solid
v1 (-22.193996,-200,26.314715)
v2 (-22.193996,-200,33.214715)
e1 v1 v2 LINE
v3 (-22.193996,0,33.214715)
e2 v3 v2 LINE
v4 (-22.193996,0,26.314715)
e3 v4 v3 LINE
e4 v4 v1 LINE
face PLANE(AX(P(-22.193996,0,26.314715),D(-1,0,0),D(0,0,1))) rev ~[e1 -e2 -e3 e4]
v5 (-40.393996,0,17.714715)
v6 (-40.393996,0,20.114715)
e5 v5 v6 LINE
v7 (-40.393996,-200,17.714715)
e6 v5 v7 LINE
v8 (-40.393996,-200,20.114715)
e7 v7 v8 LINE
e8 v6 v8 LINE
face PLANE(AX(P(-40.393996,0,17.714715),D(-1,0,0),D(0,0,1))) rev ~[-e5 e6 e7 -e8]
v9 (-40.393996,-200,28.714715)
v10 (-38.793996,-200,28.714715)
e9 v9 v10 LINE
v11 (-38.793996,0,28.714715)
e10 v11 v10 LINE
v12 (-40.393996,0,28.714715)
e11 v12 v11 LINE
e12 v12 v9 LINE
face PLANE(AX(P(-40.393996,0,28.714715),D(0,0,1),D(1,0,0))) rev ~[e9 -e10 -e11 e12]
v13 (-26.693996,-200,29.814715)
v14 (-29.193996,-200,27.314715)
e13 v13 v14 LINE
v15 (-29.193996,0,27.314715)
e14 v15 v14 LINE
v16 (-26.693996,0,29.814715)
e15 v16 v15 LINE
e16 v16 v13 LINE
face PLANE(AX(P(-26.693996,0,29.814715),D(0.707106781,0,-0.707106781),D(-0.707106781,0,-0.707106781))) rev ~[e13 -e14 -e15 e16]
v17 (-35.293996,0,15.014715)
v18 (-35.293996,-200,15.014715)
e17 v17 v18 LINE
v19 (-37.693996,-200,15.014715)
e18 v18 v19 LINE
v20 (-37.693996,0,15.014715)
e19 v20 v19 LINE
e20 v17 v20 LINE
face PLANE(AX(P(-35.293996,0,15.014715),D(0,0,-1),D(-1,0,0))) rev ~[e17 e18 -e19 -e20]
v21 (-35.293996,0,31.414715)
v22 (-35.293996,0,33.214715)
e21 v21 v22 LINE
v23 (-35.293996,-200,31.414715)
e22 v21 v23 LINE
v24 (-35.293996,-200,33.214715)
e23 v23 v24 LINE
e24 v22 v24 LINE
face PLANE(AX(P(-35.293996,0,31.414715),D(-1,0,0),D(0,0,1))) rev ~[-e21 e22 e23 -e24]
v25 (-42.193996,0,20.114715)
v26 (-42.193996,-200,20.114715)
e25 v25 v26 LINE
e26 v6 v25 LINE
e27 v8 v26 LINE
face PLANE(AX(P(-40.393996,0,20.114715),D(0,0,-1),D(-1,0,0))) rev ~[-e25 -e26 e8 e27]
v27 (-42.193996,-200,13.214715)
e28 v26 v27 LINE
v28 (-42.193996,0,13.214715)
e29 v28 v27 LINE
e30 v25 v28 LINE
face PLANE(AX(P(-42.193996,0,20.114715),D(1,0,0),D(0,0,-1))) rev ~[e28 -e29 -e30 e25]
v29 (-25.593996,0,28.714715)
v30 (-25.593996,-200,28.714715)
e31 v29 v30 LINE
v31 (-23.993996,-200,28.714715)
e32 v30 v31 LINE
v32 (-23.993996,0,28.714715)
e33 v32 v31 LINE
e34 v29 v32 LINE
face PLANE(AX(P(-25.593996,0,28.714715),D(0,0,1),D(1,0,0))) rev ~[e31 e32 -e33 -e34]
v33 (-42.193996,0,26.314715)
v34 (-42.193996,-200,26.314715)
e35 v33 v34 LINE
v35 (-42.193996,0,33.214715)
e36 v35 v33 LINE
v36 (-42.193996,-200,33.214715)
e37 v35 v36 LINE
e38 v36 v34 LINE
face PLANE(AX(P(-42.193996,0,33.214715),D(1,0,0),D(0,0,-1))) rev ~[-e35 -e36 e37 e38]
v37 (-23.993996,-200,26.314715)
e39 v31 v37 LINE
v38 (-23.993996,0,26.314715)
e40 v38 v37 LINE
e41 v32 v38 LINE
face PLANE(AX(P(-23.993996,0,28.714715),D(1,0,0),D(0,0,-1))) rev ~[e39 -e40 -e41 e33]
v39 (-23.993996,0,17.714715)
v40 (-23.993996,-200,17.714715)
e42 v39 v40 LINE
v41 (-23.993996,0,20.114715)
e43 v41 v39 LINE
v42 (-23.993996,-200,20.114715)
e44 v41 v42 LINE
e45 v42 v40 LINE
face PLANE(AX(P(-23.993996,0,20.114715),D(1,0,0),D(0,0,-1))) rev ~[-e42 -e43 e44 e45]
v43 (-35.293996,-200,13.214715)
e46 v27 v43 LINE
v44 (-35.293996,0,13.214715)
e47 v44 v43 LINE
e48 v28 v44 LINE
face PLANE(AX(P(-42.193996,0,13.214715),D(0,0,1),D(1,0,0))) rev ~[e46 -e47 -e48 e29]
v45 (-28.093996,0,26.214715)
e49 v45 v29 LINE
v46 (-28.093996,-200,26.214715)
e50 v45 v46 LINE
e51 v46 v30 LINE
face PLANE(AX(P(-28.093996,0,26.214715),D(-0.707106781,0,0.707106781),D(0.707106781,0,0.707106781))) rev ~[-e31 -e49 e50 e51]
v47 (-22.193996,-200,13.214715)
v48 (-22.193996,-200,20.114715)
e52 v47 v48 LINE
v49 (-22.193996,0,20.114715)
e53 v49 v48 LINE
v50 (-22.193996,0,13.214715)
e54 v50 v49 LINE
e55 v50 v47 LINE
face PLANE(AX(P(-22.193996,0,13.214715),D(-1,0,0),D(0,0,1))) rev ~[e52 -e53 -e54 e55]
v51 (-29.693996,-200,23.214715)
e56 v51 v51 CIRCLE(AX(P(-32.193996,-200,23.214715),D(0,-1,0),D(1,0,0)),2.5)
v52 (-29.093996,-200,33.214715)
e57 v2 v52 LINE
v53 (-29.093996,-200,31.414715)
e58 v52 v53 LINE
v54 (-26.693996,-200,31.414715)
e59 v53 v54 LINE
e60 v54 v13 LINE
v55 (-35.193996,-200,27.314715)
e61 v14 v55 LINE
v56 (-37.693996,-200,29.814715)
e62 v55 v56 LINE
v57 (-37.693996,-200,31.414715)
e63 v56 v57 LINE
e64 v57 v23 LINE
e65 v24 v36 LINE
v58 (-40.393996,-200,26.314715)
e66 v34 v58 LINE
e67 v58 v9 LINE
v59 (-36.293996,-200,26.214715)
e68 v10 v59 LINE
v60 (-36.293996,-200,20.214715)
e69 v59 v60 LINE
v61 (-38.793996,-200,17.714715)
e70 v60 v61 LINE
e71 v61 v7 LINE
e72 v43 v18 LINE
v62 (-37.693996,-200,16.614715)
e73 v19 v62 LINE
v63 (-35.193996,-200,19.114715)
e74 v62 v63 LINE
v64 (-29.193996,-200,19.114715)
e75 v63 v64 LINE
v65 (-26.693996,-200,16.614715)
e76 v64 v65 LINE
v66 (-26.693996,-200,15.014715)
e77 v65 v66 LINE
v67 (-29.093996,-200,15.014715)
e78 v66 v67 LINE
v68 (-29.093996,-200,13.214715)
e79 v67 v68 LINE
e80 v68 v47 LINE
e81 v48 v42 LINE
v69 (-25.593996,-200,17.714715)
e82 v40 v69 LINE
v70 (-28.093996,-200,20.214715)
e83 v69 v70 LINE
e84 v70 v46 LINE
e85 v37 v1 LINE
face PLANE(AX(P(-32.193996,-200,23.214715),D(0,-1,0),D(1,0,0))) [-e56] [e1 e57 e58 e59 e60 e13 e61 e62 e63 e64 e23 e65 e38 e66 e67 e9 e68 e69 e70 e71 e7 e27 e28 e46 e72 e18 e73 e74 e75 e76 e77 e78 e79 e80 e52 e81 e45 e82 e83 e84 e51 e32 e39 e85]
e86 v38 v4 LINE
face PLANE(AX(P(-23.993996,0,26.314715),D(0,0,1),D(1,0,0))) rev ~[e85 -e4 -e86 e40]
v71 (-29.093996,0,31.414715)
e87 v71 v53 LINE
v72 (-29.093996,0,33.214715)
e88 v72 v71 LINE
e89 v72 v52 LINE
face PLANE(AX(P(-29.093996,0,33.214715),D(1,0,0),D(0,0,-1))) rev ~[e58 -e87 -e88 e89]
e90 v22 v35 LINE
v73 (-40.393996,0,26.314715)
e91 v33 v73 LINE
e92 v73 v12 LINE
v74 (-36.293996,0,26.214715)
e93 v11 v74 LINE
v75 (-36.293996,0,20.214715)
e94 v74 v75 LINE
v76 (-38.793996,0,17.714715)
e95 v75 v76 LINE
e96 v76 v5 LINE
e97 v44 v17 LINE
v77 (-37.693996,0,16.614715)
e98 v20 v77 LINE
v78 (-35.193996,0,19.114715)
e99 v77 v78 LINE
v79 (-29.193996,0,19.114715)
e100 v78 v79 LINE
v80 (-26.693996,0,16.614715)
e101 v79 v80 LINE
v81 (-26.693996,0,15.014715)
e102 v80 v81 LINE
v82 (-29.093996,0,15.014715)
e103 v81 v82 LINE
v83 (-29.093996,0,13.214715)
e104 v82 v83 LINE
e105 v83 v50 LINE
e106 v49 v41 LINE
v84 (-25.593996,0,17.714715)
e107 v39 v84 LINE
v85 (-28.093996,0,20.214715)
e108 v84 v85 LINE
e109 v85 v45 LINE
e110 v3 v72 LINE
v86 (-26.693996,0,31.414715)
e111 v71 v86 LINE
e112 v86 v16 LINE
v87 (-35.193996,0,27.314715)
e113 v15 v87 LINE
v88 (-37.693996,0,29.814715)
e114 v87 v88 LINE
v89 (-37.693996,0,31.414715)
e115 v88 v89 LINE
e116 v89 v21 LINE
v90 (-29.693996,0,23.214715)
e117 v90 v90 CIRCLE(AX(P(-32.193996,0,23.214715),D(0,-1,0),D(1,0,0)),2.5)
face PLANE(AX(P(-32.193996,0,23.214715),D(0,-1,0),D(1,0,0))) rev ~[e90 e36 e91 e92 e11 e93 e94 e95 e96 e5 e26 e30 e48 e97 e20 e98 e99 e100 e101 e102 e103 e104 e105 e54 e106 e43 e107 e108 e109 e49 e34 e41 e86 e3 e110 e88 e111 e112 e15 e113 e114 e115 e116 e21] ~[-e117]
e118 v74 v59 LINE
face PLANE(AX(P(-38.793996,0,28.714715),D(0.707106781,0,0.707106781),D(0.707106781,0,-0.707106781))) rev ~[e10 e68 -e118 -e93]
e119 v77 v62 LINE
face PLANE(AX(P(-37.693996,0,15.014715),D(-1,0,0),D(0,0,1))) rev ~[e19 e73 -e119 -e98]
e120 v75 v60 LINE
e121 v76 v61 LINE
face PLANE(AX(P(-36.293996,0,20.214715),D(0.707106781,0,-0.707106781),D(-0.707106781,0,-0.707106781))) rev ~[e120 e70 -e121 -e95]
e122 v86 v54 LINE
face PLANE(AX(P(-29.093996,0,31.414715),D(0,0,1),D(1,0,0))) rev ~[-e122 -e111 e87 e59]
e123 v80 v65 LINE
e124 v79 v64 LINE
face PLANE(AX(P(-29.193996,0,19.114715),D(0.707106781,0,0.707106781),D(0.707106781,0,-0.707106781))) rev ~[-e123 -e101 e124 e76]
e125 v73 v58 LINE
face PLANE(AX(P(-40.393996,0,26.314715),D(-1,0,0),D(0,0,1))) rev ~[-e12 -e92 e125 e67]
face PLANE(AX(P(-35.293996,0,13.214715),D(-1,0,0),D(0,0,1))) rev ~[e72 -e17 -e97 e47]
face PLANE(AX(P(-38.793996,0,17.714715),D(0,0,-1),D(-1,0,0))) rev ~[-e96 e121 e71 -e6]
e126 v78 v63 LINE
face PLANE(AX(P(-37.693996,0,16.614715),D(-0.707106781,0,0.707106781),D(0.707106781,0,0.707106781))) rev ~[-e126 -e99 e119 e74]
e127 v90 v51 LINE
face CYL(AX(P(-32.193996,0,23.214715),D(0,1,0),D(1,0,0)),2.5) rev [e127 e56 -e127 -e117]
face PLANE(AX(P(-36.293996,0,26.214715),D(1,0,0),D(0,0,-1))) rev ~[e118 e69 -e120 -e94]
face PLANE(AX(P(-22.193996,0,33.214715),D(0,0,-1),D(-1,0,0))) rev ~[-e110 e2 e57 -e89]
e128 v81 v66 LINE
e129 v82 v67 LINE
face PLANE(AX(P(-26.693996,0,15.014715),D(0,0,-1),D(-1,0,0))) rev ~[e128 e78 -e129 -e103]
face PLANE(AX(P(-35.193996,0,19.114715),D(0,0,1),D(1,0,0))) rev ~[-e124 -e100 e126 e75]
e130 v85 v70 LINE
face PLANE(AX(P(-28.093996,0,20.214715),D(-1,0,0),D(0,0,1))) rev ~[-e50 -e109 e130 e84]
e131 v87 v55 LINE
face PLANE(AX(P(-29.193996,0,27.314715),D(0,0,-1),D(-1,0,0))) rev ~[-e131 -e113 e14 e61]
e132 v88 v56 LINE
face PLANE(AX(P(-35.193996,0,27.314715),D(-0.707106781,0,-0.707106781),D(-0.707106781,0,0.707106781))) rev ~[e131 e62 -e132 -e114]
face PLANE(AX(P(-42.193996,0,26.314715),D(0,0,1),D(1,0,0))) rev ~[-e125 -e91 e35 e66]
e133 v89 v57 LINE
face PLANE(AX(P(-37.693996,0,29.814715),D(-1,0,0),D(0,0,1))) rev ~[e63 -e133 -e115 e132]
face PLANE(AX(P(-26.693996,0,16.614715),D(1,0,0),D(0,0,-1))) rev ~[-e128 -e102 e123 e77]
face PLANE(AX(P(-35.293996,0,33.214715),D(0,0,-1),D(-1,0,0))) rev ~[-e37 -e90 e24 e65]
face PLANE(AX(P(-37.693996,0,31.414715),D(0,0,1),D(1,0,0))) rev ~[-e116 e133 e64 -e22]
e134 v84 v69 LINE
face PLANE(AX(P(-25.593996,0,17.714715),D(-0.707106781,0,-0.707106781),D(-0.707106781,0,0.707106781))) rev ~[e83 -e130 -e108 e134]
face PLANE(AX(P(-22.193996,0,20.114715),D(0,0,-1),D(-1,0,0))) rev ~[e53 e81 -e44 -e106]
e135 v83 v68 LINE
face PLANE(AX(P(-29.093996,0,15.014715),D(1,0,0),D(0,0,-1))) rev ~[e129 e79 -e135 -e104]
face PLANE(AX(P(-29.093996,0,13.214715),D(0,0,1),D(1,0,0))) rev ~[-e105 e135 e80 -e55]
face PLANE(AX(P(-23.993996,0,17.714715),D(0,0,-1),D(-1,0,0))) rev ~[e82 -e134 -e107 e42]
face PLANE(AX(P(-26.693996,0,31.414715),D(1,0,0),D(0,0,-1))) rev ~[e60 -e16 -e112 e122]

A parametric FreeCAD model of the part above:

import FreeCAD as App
import Part
import Sketcher

doc = App.newDocument("Part")
body = doc.addObject("PartDesign::Body", "Body")

# Sketch on XZ plane
sketch1 = body.newObject("Sketcher::SketchObject", "Sketch")
sketch1.AttachmentSupport = (doc.getObject("XZ_Plane"), [""])
sketch1.MapMode = "FlatFace"
sketch1.addGeometry([
    Part.LineSegment(App.Vector(-35.293996, 33.214715, 0), App.Vector(-42.193996, 33.214715, 0)),  # 0
    Part.LineSegment(App.Vector(-42.193996, 33.214715, 0), App.Vector(-42.193996, 26.314715, 0)),  # 1
    Part.LineSegment(App.Vector(-42.193996, 26.314715, 0), App.Vector(-40.393996, 26.314715, 0)),  # 2
    Part.LineSegment(App.Vector(-40.393996, 26.314715, 0), App.Vector(-40.393996, 28.714715, 0)),  # 3
    Part.LineSegment(App.Vector(-40.393996, 28.714715, 0), App.Vector(-38.793996, 28.714715, 0)),  # 4
    Part.LineSegment(App.Vector(-38.793996, 28.714715, 0), App.Vector(-36.293996, 26.214715, 0)),  # 5
    Part.LineSegment(App.Vector(-36.293996, 26.214715, 0), App.Vector(-36.293996, 20.214715, 0)),  # 6
    Part.LineSegment(App.Vector(-36.293996, 20.214715, 0), App.Vector(-38.793996, 17.714715, 0)),  # 7
    Part.LineSegment(App.Vector(-38.793996, 17.714715, 0), App.Vector(-40.393996, 17.714715, 0)),  # 8
    Part.LineSegment(App.Vector(-40.393996, 17.714715, 0), App.Vector(-40.393996, 20.114715, 0)),  # 9
    Part.LineSegment(App.Vector(-40.393996, 20.114715, 0), App.Vector(-42.193996, 20.114715, 0)),  # 10
    Part.LineSegment(App.Vector(-42.193996, 20.114715, 0), App.Vector(-42.193996, 13.214715, 0)),  # 11
    Part.LineSegment(App.Vector(-42.193996, 13.214715, 0), App.Vector(-35.293996, 13.214715, 0)),  # 12
    Part.LineSegment(App.Vector(-35.293996, 13.214715, 0), App.Vector(-35.293996, 15.014715, 0)),  # 13
    Part.LineSegment(App.Vector(-35.293996, 15.014715, 0), App.Vector(-37.693996, 15.014715, 0)),  # 14
    Part.LineSegment(App.Vector(-37.693996, 15.014715, 0), App.Vector(-37.693996, 16.614715, 0)),  # 15
    Part.LineSegment(App.Vector(-37.693996, 16.614715, 0), App.Vector(-35.193996, 19.114715, 0)),  # 16
    Part.LineSegment(App.Vector(-35.193996, 19.114715, 0), App.Vector(-29.193996, 19.114715, 0)),  # 17
    Part.LineSegment(App.Vector(-29.193996, 19.114715, 0), App.Vector(-26.693996, 16.614715, 0)),  # 18
    Part.LineSegment(App.Vector(-26.693996, 16.614715, 0), App.Vector(-26.693996, 15.014715, 0)),  # 19
    Part.LineSegment(App.Vector(-26.693996, 15.014715, 0), App.Vector(-29.093996, 15.014715, 0)),  # 20
    Part.LineSegment(App.Vector(-29.093996, 15.014715, 0), App.Vector(-29.093996, 13.214715, 0)),  # 21
    Part.LineSegment(App.Vector(-29.093996, 13.214715, 0), App.Vector(-22.193996, 13.214715, 0)),  # 22
    Part.LineSegment(App.Vector(-22.193996, 13.214715, 0), App.Vector(-22.193996, 20.114715, 0)),  # 23
    Part.LineSegment(App.Vector(-22.193996, 20.114715, 0), App.Vector(-23.993996, 20.114715, 0)),  # 24
    Part.LineSegment(App.Vector(-23.993996, 20.114715, 0), App.Vector(-23.993996, 17.714715, 0)),  # 25
    Part.LineSegment(App.Vector(-23.993996, 17.714715, 0), App.Vector(-25.593996, 17.714715, 0)),  # 26
    Part.LineSegment(App.Vector(-25.593996, 17.714715, 0), App.Vector(-28.093996, 20.214715, 0)),  # 27
    Part.LineSegment(App.Vector(-28.093996, 20.214715, 0), App.Vector(-28.093996, 26.214715, 0)),  # 28
    Part.LineSegment(App.Vector(-28.093996, 26.214715, 0), App.Vector(-25.593996, 28.714715, 0)),  # 29
    Part.LineSegment(App.Vector(-25.593996, 28.714715, 0), App.Vector(-23.993996, 28.714715, 0)),  # 30
    Part.LineSegment(App.Vector(-23.993996, 28.714715, 0), App.Vector(-23.993996, 26.314715, 0)),  # 31
    Part.LineSegment(App.Vector(-23.993996, 26.314715, 0), App.Vector(-22.193996, 26.314715, 0)),  # 32
    Part.LineSegment(App.Vector(-22.193996, 26.314715, 0), App.Vector(-22.193996, 33.214715, 0)),  # 33
    Part.LineSegment(App.Vector(-22.193996, 33.214715, 0), App.Vector(-29.093996, 33.214715, 0)),  # 34
    Part.LineSegment(App.Vector(-29.093996, 33.214715, 0), App.Vector(-29.093996, 31.414715, 0)),  # 35
    Part.LineSegment(App.Vector(-29.093996, 31.414715, 0), App.Vector(-26.693996, 31.414715, 0)),  # 36
    Part.LineSegment(App.Vector(-26.693996, 31.414715, 0), App.Vector(-26.693996, 29.814715, 0)),  # 37
    Part.LineSegment(App.Vector(-26.693996, 29.814715, 0), App.Vector(-29.193996, 27.314715, 0)),  # 38
    Part.LineSegment(App.Vector(-29.193996, 27.314715, 0), App.Vector(-35.193996, 27.314715, 0)),  # 39
    Part.LineSegment(App.Vector(-35.193996, 27.314715, 0), App.Vector(-37.693996, 29.814715, 0)),  # 40
    Part.LineSegment(App.Vector(-37.693996, 29.814715, 0), App.Vector(-37.693996, 31.414715, 0)),  # 41
    Part.LineSegment(App.Vector(-37.693996, 31.414715, 0), App.Vector(-35.293996, 31.414715, 0)),  # 42
    Part.LineSegment(App.Vector(-35.293996, 31.414715, 0), App.Vector(-35.293996, 33.214715, 0)),  # 43
    Part.Circle(App.Vector(-32.193996, 23.214715, 0), App.Vector(0, 0, 1), 2.5),  # 44
], False)
sketch1.addConstraint([
    Sketcher.Constraint("Coincident", 0, 2, 1, 1),
    Sketcher.Constraint("Coincident", 1, 2, 2, 1),
    Sketcher.Constraint("Coincident", 2, 2, 3, 1),
    Sketcher.Constraint("Coincident", 3, 2, 4, 1),
    Sketcher.Constraint("Coincident", 4, 2, 5, 1),
    Sketcher.Constraint("Coincident", 5, 2, 6, 1),
    Sketcher.Constraint("Coincident", 6, 2, 7, 1),
    Sketcher.Constraint("Coincident", 7, 2, 8, 1),
    Sketcher.Constraint("Coincident", 8, 2, 9, 1),
    Sketcher.Constraint("Coincident", 9, 2, 10, 1),
    Sketcher.Constraint("Coincident", 10, 2, 11, 1),
    Sketcher.Constraint("Coincident", 11, 2, 12, 1),
    Sketcher.Constraint("Coincident", 12, 2, 13, 1),
    Sketcher.Constraint("Coincident", 13, 2, 14, 1),
    Sketcher.Constraint("Coincident", 14, 2, 15, 1),
    Sketcher.Constraint("Coincident", 15, 2, 16, 1),
    Sketcher.Constraint("Coincident", 16, 2, 17, 1),
    Sketcher.Constraint("Coincident", 17, 2, 18, 1),
    Sketcher.Constraint("Coincident", 18, 2, 19, 1),
    Sketcher.Constraint("Coincident", 19, 2, 20, 1),
    Sketcher.Constraint("Coincident", 20, 2, 21, 1),
    Sketcher.Constraint("Coincident", 21, 2, 22, 1),
    Sketcher.Constraint("Coincident", 22, 2, 23, 1),
    Sketcher.Constraint("Coincident", 23, 2, 24, 1),
    Sketcher.Constraint("Coincident", 24, 2, 25, 1),
    Sketcher.Constraint("Coincident", 25, 2, 26, 1),
    Sketcher.Constraint("Coincident", 26, 2, 27, 1),
    Sketcher.Constraint("Coincident", 27, 2, 28, 1),
    Sketcher.Constraint("Coincident", 28, 2, 29, 1),
    Sketcher.Constraint("Coincident", 29, 2, 30, 1),
    Sketcher.Constraint("Coincident", 30, 2, 31, 1),
    Sketcher.Constraint("Coincident", 31, 2, 32, 1),
    Sketcher.Constraint("Coincident", 32, 2, 33, 1),
    Sketcher.Constraint("Coincident", 33, 2, 34, 1),
    Sketcher.Constraint("Coincident", 34, 2, 35, 1),
    Sketcher.Constraint("Coincident", 35, 2, 36, 1),
    Sketcher.Constraint("Coincident", 36, 2, 37, 1),
    Sketcher.Constraint("Coincident", 37, 2, 38, 1),
    Sketcher.Constraint("Coincident", 38, 2, 39, 1),
    Sketcher.Constraint("Coincident", 39, 2, 40, 1),
    Sketcher.Constraint("Coincident", 40, 2, 41, 1),
    Sketcher.Constraint("Coincident", 41, 2, 42, 1),
    Sketcher.Constraint("Coincident", 42, 2, 43, 1),
    Sketcher.Constraint("Coincident", 43, 2, 0, 1),
    Sketcher.Constraint("Horizontal", 0),
    Sketcher.Constraint("Vertical", 1),
    Sketcher.Constraint("Horizontal", 2),
    Sketcher.Constraint("Vertical", 3),
    Sketcher.Constraint("Horizontal", 4),
    Sketcher.Constraint("Vertical", 6),
    Sketcher.Constraint("Horizontal", 8),
    Sketcher.Constraint("Vertical", 9),
    Sketcher.Constraint("Horizontal", 10),
    Sketcher.Constraint("Vertical", 11),
    Sketcher.Constraint("Horizontal", 12),
    Sketcher.Constraint("Vertical", 13),
    Sketcher.Constraint("Horizontal", 14),
    Sketcher.Constraint("Vertical", 15),
    Sketcher.Constraint("Horizontal", 17),
    Sketcher.Constraint("Vertical", 19),
    Sketcher.Constraint("Horizontal", 20),
    Sketcher.Constraint("Vertical", 21),
    Sketcher.Constraint("Horizontal", 22),
    Sketcher.Constraint("Vertical", 23),
    Sketcher.Constraint("Horizontal", 24),
    Sketcher.Constraint("Vertical", 25),
    Sketcher.Constraint("Horizontal", 26),
    Sketcher.Constraint("Vertical", 28),
    Sketcher.Constraint("Horizontal", 30),
    Sketcher.Constraint("Vertical", 31),
    Sketcher.Constraint("Horizontal", 32),
    Sketcher.Constraint("Vertical", 33),
    Sketcher.Constraint("Horizontal", 34),
    Sketcher.Constraint("Vertical", 35),
    Sketcher.Constraint("Horizontal", 36),
    Sketcher.Constraint("Vertical", 37),
    Sketcher.Constraint("Horizontal", 39),
    Sketcher.Constraint("Vertical", 41),
    Sketcher.Constraint("Horizontal", 42),
    Sketcher.Constraint("Vertical", 43),
    Sketcher.Constraint("Perpendicular", 5, 7),
    Sketcher.Constraint("Parallel", 7, 16),
    Sketcher.Constraint("Perpendicular", 16, 18),
    Sketcher.Constraint("Parallel", 18, 27),
    Sketcher.Constraint("Perpendicular", 27, 29),
    Sketcher.Constraint("Parallel", 29, 38),
    Sketcher.Constraint("Perpendicular", 38, 40),
    Sketcher.Constraint("Horizontal", 15, 2, 18, 2),
    Sketcher.Constraint("Horizontal", 14, 2, 19, 2),
    Sketcher.Constraint("Horizontal", 12, 2, 21, 2),
    Sketcher.Constraint("Horizontal", 10, 2, 23, 2),
    Sketcher.Constraint("Horizontal", 8, 2, 25, 2),
    Sketcher.Constraint("Horizontal", 6, 2, 27, 2),
    Sketcher.Constraint("Horizontal", 5, 2, 28, 2),
    Sketcher.Constraint("Horizontal", 4, 2, 29, 2),
    Sketcher.Constraint("Horizontal", 2, 2, 31, 2),
    Sketcher.Constraint("Horizontal", 0, 2, 33, 2),
    Sketcher.Constraint("Horizontal", 37, 2, 40, 2),
    Sketcher.Constraint("Horizontal", 36, 2, 41, 2),
    Sketcher.Constraint("Vertical", 4, 2, 7, 2),
    Sketcher.Constraint("Vertical", 3, 2, 8, 2),
    Sketcher.Constraint("Vertical", 1, 2, 10, 2),
    Sketcher.Constraint("Vertical", 26, 2, 29, 2),
    Sketcher.Constraint("Vertical", 25, 2, 30, 2),
    Sketcher.Constraint("Vertical", 23, 2, 32, 2),
    Sketcher.Constraint("Vertical", 21, 2, 34, 2),
    Sketcher.Constraint("Vertical", 19, 2, 36, 2),
    Sketcher.Constraint("Vertical", 17, 2, 38, 2),
    Sketcher.Constraint("Vertical", 16, 2, 39, 2),
    Sketcher.Constraint("Vertical", 13, 2, 42, 2),
    Sketcher.Constraint("Equal", 14, 20),
    Sketcher.Constraint("Equal", 12, 22),
    Sketcher.Constraint("Equal", 10, 24),
    Sketcher.Constraint("Equal", 8, 26),
    Sketcher.Constraint("Equal", 34, 1),
    Sketcher.Constraint("Equal", 42, 3),
    Sketcher.Constraint("Equal", 39, 6),
    Sketcher.Constraint("Equal", 3, 9),
    Sketcher.Constraint("Equal", 1, 11),
    Sketcher.Constraint("Equal", 32, 13),
    Sketcher.Constraint("Equal", 30, 15),
    Sketcher.Constraint("Equal", 21, 35),
    Sketcher.Constraint("Equal", 19, 37),
    Sketcher.Constraint("Equal", 7, 16),
    Sketcher.Constraint("Diameter", 44, 5.0),
    Sketcher.Constraint("DistanceX", 17, 1, 17, 2, 6.0),
    Sketcher.Constraint("DistanceX", 0, 2, 0, 1, 6.9),
    Sketcher.Constraint("DistanceX", 2, 1, 2, 2, 1.8),
    Sketcher.Constraint("DistanceX", 4, 1, 4, 2, 1.6),
    Sketcher.Constraint("DistanceX", 14, 2, 14, 1, 2.4),
    Sketcher.Constraint("DistanceX", 0, 2, 44, 3, 10.0),
    Sketcher.Constraint("DistanceY", 44, 3, 0, 2, 10.0),
    Sketcher.Constraint("DistanceY", 44, 3, 5, 2, 3.0),
    Sketcher.Constraint("DistanceX", 44, 3, -1, 1, 32.193996),
    Sketcher.Constraint("DistanceY", -1, 1, 44, 3, 23.214715),
])
pad1 = body.newObject("PartDesign::Pad", "Pad")
pad1.Profile = sketch1
pad1.Length = 200

doc.recompute()
